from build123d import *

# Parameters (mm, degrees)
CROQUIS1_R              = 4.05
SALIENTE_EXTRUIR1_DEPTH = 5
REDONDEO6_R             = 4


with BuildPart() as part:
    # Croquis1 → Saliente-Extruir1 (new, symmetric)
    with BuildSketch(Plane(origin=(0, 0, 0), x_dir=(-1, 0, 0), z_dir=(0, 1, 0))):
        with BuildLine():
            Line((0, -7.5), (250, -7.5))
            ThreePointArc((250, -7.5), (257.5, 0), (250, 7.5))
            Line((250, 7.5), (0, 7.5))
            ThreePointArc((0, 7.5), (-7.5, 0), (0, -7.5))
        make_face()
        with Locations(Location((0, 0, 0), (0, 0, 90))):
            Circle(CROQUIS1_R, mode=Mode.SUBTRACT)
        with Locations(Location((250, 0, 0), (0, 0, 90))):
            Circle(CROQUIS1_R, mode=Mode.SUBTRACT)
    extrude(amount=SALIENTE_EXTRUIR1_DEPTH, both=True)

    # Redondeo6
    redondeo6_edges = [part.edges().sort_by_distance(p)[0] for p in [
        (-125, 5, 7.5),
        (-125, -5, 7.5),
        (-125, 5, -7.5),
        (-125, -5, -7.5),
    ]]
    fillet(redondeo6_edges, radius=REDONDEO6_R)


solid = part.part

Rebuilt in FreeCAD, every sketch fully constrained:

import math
import FreeCAD as App
import Part
import Sketcher
Q = App.Units.Quantity


def edges_at(feature, points):
    """Names of the edges that pass closest to the given points."""
    edges = feature.Shape.Edges
    near = lambda p: min(range(len(edges)), key=lambda i: edges[i].distToShape(Part.Vertex(*p))[0])
    return sorted({f"Edge{near(p) + 1}" for p in points})

doc = App.newDocument("Part")
params = doc.addObject("Spreadsheet::Sheet", "Params")
for row, (alias, value) in enumerate([
    ("sketch1_diameter", "8.1 mm"),
    ("sketch1_radius", "7.5 mm"),
    ("sketch1_width", "250 mm"),
    ("pad1_length", "10 mm"),
    ("fillet_radius", "4 mm"),
], start=1):
    params.set(f"A{row}", alias)
    params.set(f"B{row}", "=" + value)
    params.setAlias(f"B{row}", alias)

body = doc.addObject("PartDesign::Body", "Body")

sketch1 = doc.addObject("Sketcher::SketchObject", "Sketch")
body.addObject(sketch1)
sketch1.AttachmentSupport = (doc.XZ_Plane, [""])
sketch1.MapMode = "FlatFace"
sketch1.addGeometry([
    Part.LineSegment(App.Vector(0, -7.5, 0), App.Vector(-250, -7.5, 0)),
    Part.ArcOfCircle(Part.Circle(App.Vector(-250, 0, 0), App.Vector(0, 0, 1), 7.5), math.radians(90), math.radians(270)),
    Part.LineSegment(App.Vector(-250, 7.5, 0), App.Vector(0, 7.5, 0)),
    Part.ArcOfCircle(Part.Circle(App.Vector(0, 0, 0), App.Vector(0, 0, 1), 7.5), math.radians(-90), math.radians(90)),
    Part.Circle(App.Vector(0, 0, 0), App.Vector(0, 0, 1), 4),
    Part.Circle(App.Vector(-250, 0, 0), App.Vector(0, 0, 1), 4),
], False)
sketch1.addConstraint([
    Sketcher.Constraint("Tangent", 0, 2, 1, 2),
    Sketcher.Constraint("Tangent", 1, 1, 2, 1),
    Sketcher.Constraint("Tangent", 2, 2, 3, 2),
    Sketcher.Constraint("Tangent", 3, 1, 0, 1),
    Sketcher.Constraint("Horizontal", 0),
    Sketcher.Constraint("Horizontal", 2),
    Sketcher.Constraint("Coincident", 3, 3, -1, 1),
    Sketcher.Constraint("Coincident", 4, 3, -1, 1),
    Sketcher.Constraint("Coincident", 5, 3, 1, 3),
    Sketcher.Constraint("Equal", 4, 5),
    Sketcher.Constraint("Diameter", 4, Q("8.1 mm")),
    Sketcher.Constraint("Radius", 1, Q("7.5 mm")),
    Sketcher.Constraint("DistanceX", 0, 2, 0, 1, Q("250 mm")),
])
sketch1.setExpression("Constraints[10]", "Params.sketch1_diameter")
sketch1.setExpression("Constraints[11]", "Params.sketch1_radius")
sketch1.setExpression("Constraints[12]", "Params.sketch1_width")
pad1 = doc.addObject("PartDesign::Pad", "Pad")
body.addObject(pad1)
pad1.Profile = sketch1
pad1.setExpression("Length", "Params.pad1_length")
pad1.Midplane = True
doc.recompute()

fillet = doc.addObject("PartDesign::Fillet", "Fillet")
body.addObject(fillet)
fillet.Base = (pad1, edges_at(pad1, [
    (-125, 5, 7.5),
    (-125, -5, 7.5),
    (-125, 5, -7.5),
    (-125, -5, -7.5),
]))
fillet.setExpression("Radius", "Params.fillet_radius")

doc.recompute()
